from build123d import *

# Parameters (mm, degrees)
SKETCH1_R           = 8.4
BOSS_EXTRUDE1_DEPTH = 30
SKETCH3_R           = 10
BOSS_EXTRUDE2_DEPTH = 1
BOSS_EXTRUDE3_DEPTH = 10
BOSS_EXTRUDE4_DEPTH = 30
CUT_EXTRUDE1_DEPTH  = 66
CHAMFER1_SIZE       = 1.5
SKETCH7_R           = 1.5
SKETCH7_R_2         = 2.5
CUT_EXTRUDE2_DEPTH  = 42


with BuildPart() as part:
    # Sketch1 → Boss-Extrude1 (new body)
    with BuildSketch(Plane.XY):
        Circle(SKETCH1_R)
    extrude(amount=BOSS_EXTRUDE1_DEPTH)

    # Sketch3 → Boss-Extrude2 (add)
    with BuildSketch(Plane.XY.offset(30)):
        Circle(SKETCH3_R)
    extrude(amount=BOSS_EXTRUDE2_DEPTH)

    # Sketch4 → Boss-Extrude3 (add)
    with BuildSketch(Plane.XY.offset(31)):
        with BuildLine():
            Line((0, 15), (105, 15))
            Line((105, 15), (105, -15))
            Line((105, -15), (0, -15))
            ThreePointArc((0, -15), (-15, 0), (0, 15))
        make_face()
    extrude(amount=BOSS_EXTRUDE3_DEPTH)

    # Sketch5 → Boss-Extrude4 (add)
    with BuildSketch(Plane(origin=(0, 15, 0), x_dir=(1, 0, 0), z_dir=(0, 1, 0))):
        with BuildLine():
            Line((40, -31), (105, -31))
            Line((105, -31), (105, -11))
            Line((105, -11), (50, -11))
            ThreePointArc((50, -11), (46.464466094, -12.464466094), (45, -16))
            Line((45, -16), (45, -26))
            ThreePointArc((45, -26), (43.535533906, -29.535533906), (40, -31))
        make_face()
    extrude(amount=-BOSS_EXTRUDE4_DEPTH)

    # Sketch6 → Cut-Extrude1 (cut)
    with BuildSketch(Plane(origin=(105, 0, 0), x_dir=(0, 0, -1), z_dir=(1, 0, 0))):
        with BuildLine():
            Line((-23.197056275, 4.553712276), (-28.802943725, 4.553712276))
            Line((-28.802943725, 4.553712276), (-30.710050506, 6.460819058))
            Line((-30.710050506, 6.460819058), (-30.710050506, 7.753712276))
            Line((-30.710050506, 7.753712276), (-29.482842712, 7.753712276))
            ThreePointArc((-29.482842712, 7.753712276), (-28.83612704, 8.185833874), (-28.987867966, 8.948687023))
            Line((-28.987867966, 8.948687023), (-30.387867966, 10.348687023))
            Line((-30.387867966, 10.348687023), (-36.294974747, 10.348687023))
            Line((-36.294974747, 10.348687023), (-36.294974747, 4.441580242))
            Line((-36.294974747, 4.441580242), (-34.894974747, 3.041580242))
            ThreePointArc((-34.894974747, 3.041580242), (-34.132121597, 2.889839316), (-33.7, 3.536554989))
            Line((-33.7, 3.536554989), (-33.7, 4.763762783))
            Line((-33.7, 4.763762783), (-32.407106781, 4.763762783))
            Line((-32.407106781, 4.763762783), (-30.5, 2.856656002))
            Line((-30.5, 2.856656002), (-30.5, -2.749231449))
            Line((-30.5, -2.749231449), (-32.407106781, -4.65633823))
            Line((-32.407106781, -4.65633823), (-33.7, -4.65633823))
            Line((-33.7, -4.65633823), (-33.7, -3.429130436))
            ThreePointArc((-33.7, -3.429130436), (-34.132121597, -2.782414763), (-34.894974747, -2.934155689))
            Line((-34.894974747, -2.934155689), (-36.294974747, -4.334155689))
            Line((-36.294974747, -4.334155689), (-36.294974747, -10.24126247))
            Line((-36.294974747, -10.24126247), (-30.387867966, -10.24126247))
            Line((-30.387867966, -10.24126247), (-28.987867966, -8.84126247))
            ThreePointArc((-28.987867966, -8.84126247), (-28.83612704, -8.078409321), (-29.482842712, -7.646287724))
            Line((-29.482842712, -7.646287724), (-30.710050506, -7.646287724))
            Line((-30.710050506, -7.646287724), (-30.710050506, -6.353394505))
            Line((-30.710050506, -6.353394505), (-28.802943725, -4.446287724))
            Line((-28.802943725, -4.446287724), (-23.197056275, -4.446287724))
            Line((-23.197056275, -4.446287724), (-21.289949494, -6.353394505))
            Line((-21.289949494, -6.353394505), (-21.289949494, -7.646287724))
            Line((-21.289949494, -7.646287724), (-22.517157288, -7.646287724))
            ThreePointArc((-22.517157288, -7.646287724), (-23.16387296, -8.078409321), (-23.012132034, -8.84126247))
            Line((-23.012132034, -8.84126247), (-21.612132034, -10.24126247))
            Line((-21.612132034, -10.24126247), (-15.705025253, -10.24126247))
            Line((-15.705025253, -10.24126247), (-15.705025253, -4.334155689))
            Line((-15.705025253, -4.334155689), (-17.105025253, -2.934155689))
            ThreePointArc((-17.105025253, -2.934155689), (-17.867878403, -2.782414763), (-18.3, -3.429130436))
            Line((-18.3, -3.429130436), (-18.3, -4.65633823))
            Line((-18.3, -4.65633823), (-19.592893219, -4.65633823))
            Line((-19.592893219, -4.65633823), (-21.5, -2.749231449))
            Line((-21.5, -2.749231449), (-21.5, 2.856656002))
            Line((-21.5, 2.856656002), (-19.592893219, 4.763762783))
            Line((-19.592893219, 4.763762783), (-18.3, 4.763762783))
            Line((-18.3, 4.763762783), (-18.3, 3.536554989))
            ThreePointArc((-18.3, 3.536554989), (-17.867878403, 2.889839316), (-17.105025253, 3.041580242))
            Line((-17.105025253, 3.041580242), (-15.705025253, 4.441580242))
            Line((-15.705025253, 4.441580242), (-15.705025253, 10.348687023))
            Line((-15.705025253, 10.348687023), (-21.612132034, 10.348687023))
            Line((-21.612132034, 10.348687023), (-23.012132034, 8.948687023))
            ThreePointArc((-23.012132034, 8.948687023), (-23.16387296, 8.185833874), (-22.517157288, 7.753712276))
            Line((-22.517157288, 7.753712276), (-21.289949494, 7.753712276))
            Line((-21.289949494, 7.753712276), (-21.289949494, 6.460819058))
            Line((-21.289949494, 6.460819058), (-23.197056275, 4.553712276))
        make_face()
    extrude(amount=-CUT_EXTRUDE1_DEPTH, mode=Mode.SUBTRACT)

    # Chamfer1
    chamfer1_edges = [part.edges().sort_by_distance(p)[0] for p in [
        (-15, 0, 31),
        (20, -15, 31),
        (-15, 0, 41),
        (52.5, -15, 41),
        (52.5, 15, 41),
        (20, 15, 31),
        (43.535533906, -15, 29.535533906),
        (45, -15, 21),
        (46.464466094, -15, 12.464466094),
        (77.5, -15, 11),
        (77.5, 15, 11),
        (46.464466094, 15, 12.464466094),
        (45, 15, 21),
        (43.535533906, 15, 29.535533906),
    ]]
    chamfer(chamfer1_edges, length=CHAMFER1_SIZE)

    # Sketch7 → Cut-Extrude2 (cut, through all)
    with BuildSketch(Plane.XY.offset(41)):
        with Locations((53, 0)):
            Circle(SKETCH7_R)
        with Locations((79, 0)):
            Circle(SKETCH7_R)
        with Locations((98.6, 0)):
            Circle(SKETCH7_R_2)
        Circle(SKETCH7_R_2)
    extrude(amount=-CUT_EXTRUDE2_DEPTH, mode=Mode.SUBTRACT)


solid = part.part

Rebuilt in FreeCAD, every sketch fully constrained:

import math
import FreeCAD as App
import Part
import Sketcher
from FreeCAD import Vector


def edges_at(feature, points):
    """Names of the edges that pass closest to the given points."""
    edges = feature.Shape.Edges
    near = lambda p: min(range(len(edges)), key=lambda i: edges[i].distToShape(Part.Vertex(*p))[0])
    return sorted({f"Edge{near(p) + 1}" for p in points})

doc = App.newDocument("Part")
params = doc.addObject("Spreadsheet::Sheet", "Params")
for row, (alias, value) in enumerate([
    ("sketch1_diameter", "16.8 mm"),
    ("pad1_length", "30 mm"),
    ("sketch2_diameter", "20 mm"),
    ("pad2_length", "1 mm"),
    ("sketch3_radius", "15 mm"),
    ("sketch3_width", "105 mm"),
    ("pad3_length", "10 mm"),
    ("sketch4_radius", "5 mm"),
    ("sketch4_width", "65 mm"),
    ("sketch4_height", "20 mm"),
    ("pad4_length", "30 mm"),
    ("sketch5_radius", "0.7 mm"),
    ("pocket1_length", "66 mm"),
    ("chamfer_size", "1.5 mm"),
    ("sketch6_diameter", "3 mm"),
    ("sketch6_diameter2", "5 mm"),
], start=1):
    params.set(f"A{row}", alias)
    params.set(f"B{row}", "=" + value)
    params.setAlias(f"B{row}", alias)

body = doc.addObject("PartDesign::Body", "Body")

sketch1 = body.newObject("Sketcher::SketchObject", "Sketch")
sketch1.AttachmentSupport = (doc.getObject("XY_Plane"), [""])
sketch1.MapMode = "FlatFace"
sketch1.addGeometry(Part.Circle(Vector(0, 0, 0), Vector(0, 0, 1), 8.4), False)
sketch1.addConstraint([
    Sketcher.Constraint("Coincident", 0, 3, -1, 1),
    Sketcher.Constraint("Diameter", 0, 16.8),
])
sketch1.setExpression("Constraints[1]", "Params.sketch1_diameter")
pad1 = body.newObject("PartDesign::Pad", "Pad")
pad1.Profile = sketch1
pad1.setExpression("Length", "Params.pad1_length")

sketch2 = body.newObject("Sketcher::SketchObject", "Sketch001")
sketch2.AttachmentSupport = (doc.getObject("XY_Plane"), [""])
sketch2.MapMode = "FlatFace"
sketch2.AttachmentOffset = App.Placement(Vector(0, 0, 30), App.Rotation())
sketch2.addGeometry(Part.Circle(Vector(0, 0, 0), Vector(0, 0, 1), 10), False)
sketch2.addConstraint([
    Sketcher.Constraint("Coincident", 0, 3, -1, 1),
    Sketcher.Constraint("Diameter", 0, 20.0),
])
sketch2.setExpression("Constraints[1]", "Params.sketch2_diameter")
pad2 = body.newObject("PartDesign::Pad", "Pad001")
pad2.Profile = sketch2
pad2.setExpression("Length", "Params.pad2_length")

sketch3 = body.newObject("Sketcher::SketchObject", "Sketch002")
sketch3.AttachmentSupport = (doc.getObject("XY_Plane"), [""])
sketch3.MapMode = "FlatFace"
sketch3.AttachmentOffset = App.Placement(Vector(0, 0, 31), App.Rotation())
sketch3.addGeometry([
    Part.LineSegment(Vector(105, 15, 0), Vector(0, 15, 0)),
    Part.ArcOfCircle(Part.Circle(Vector(0, 0, 0), Vector(0, 0, 1), 15), math.radians(90), math.radians(270)),
    Part.LineSegment(Vector(0, -15, 0), Vector(105, -15, 0)),
    Part.LineSegment(Vector(105, -15, 0), Vector(105, 15, 0)),
], False)
sketch3.addConstraint([
    Sketcher.Constraint("Tangent", 0, 2, 1, 1),
    Sketcher.Constraint("Tangent", 1, 2, 2, 1),
    Sketcher.Constraint("Coincident", 2, 2, 3, 1),
    Sketcher.Constraint("Coincident", 3, 2, 0, 1),
    Sketcher.Constraint("Horizontal", 0),
    Sketcher.Constraint("Horizontal", 2),
    Sketcher.Constraint("Vertical", 3),
    Sketcher.Constraint("Coincident", 1, 3, -1, 1),
    Sketcher.Constraint("Radius", 1, 15.0),
    Sketcher.Constraint("DistanceX", 0, 2, 0, 1, 105.0),
])
sketch3.setExpression("Constraints[8]", "Params.sketch3_radius")
sketch3.setExpression("Constraints[9]", "Params.sketch3_width")
pad3 = body.newObject("PartDesign::Pad", "Pad002")
pad3.Profile = sketch3
pad3.setExpression("Length", "Params.pad3_length")

sketch4 = body.newObject("Sketcher::SketchObject", "Sketch003")
sketch4.AttachmentSupport = (doc.getObject("XZ_Plane"), [""])
sketch4.MapMode = "FlatFace"
sketch4.AttachmentOffset = App.Placement(Vector(0, 0, -15), App.Rotation())
sketch4.addGeometry([
    Part.LineSegment(Vector(40, 31, 0), Vector(105, 31, 0)),
    Part.LineSegment(Vector(105, 31, 0), Vector(105, 11, 0)),
    Part.LineSegment(Vector(105, 11, 0), Vector(50, 11, 0)),
    Part.ArcOfCircle(Part.Circle(Vector(50, 16, 0), Vector(0, 0, 1), 5), math.radians(180), math.radians(270)),
    Part.LineSegment(Vector(45, 16, 0), Vector(45, 26, 0)),
    Part.ArcOfCircle(Part.Circle(Vector(40, 26, 0), Vector(0, 0, 1), 5), math.radians(0), math.radians(90)),
], False)
sketch4.addConstraint([
    Sketcher.Constraint("Coincident", 0, 2, 1, 1),
    Sketcher.Constraint("Coincident", 1, 2, 2, 1),
    Sketcher.Constraint("Tangent", 2, 2, 3, 2),
    Sketcher.Constraint("Tangent", 3, 1, 4, 1),
    Sketcher.Constraint("Tangent", 4, 2, 5, 1),
    Sketcher.Constraint("Tangent", 5, 2, 0, 1),
    Sketcher.Constraint("Horizontal", 0),
    Sketcher.Constraint("Vertical", 1),
    Sketcher.Constraint("Horizontal", 2),
    Sketcher.Constraint("Vertical", 4),
    Sketcher.Constraint("Equal", 3, 5),
    Sketcher.Constraint("Radius", 3, 5.0),
    Sketcher.Constraint("DistanceX", 0, 1, 0, 2, 65.0),
    Sketcher.Constraint("DistanceY", 1, 2, 1, 1, 20.0),
    Sketcher.Constraint("DistanceX", -1, 1, 3, 3, 50.0),
    Sketcher.Constraint("DistanceY", -1, 1, 3, 3, 16.0),
])
sketch4.setExpression("Constraints[11]", "Params.sketch4_radius")
sketch4.setExpression("Constraints[12]", "Params.sketch4_width")
sketch4.setExpression("Constraints[13]", "Params.sketch4_height")
pad4 = body.newObject("PartDesign::Pad", "Pad003")
pad4.Profile = sketch4
pad4.setExpression("Length", "Params.pad4_length")

sketch5 = body.newObject("Sketcher::SketchObject", "Sketch004")
sketch5.AttachmentSupport = (doc.getObject("YZ_Plane"), [""])
sketch5.MapMode = "FlatFace"
sketch5.AttachmentOffset = App.Placement(Vector(0, 0, 105), App.Rotation())
sketch5.addGeometry([
    Part.LineSegment(Vector(4.553712, 23.197056, 0), Vector(4.553712, 28.802944, 0)),
    Part.LineSegment(Vector(4.553712, 28.802944, 0), Vector(6.460819, 30.710051, 0)),
    Part.LineSegment(Vector(6.460819, 30.710051, 0), Vector(7.753712, 30.710051, 0)),
    Part.LineSegment(Vector(7.753712, 30.710051, 0), Vector(7.753712, 29.482843, 0)),
    Part.ArcOfCircle(Part.Circle(Vector(8.453712, 29.482843, 0), Vector(0, 0, 1), 0.7), math.radians(-180), math.radians(-45)),
    Part.LineSegment(Vector(8.948687, 28.987868, 0), Vector(10.348687, 30.387868, 0)),
    Part.LineSegment(Vector(10.348687, 30.387868, 0), Vector(10.348687, 36.294975, 0)),
    Part.LineSegment(Vector(10.348687, 36.294975, 0), Vector(4.44158, 36.294975, 0)),
    Part.LineSegment(Vector(4.44158, 36.294975, 0), Vector(3.04158, 34.894975, 0)),
    Part.ArcOfCircle(Part.Circle(Vector(3.536555, 34.4, 0), Vector(0, 0, 1), 0.7), math.radians(135), math.radians(270)),
    Part.LineSegment(Vector(3.536555, 33.7, 0), Vector(4.763763, 33.7, 0)),
    Part.LineSegment(Vector(4.763763, 33.7, 0), Vector(4.763763, 32.407107, 0)),
    Part.LineSegment(Vector(4.763763, 32.407107, 0), Vector(2.856656, 30.5, 0)),
    Part.LineSegment(Vector(2.856656, 30.5, 0), Vector(-2.749231, 30.5, 0)),
    Part.LineSegment(Vector(-2.749231, 30.5, 0), Vector(-4.656338, 32.407107, 0)),
    Part.LineSegment(Vector(-4.656338, 32.407107, 0), Vector(-4.656338, 33.7, 0)),
    Part.LineSegment(Vector(-4.656338, 33.7, 0), Vector(-3.42913, 33.7, 0)),
    Part.ArcOfCircle(Part.Circle(Vector(-3.42913, 34.4, 0), Vector(0, 0, 1), 0.7), math.radians(-90), math.radians(45)),
    Part.LineSegment(Vector(-2.934156, 34.894975, 0), Vector(-4.334156, 36.294975, 0)),
    Part.LineSegment(Vector(-4.334156, 36.294975, 0), Vector(-10.241262, 36.294975, 0)),
    Part.LineSegment(Vector(-10.241262, 36.294975, 0), Vector(-10.241262, 30.387868, 0)),
    Part.LineSegment(Vector(-10.241262, 30.387868, 0), Vector(-8.841262, 28.987868, 0)),
    Part.ArcOfCircle(Part.Circle(Vector(-8.346288, 29.482843, 0), Vector(0, 0, 1), 0.7), math.radians(-135), math.radians(0)),
    Part.LineSegment(Vector(-7.646288, 29.482843, 0), Vector(-7.646288, 30.710051, 0)),
    Part.LineSegment(Vector(-7.646288, 30.710051, 0), Vector(-6.353395, 30.710051, 0)),
    Part.LineSegment(Vector(-6.353395, 30.710051, 0), Vector(-4.446288, 28.802944, 0)),
    Part.LineSegment(Vector(-4.446288, 28.802944, 0), Vector(-4.446288, 23.197056, 0)),
    Part.LineSegment(Vector(-4.446288, 23.197056, 0), Vector(-6.353395, 21.289949, 0)),
    Part.LineSegment(Vector(-6.353395, 21.289949, 0), Vector(-7.646288, 21.289949, 0)),
    Part.LineSegment(Vector(-7.646288, 21.289949, 0), Vector(-7.646288, 22.517157, 0)),
    Part.ArcOfCircle(Part.Circle(Vector(-8.346288, 22.517157, 0), Vector(0, 0, 1), 0.7), math.radians(0), math.radians(135)),
    Part.LineSegment(Vector(-8.841262, 23.012132, 0), Vector(-10.241262, 21.612132, 0)),
    Part.LineSegment(Vector(-10.241262, 21.612132, 0), Vector(-10.241262, 15.705025, 0)),
    Part.LineSegment(Vector(-10.241262, 15.705025, 0), Vector(-4.334156, 15.705025, 0)),
    Part.LineSegment(Vector(-4.334156, 15.705025, 0), Vector(-2.934156, 17.105025, 0)),
    Part.ArcOfCircle(Part.Circle(Vector(-3.42913, 17.6, 0), Vector(0, 0, 1), 0.7), math.radians(-45), math.radians(90)),
    Part.LineSegment(Vector(-3.42913, 18.3, 0), Vector(-4.656338, 18.3, 0)),
    Part.LineSegment(Vector(-4.656338, 18.3, 0), Vector(-4.656338, 19.592893, 0)),
    Part.LineSegment(Vector(-4.656338, 19.592893, 0), Vector(-2.749231, 21.5, 0)),
    Part.LineSegment(Vector(-2.749231, 21.5, 0), Vector(2.856656, 21.5, 0)),
    Part.LineSegment(Vector(2.856656, 21.5, 0), Vector(4.763763, 19.592893, 0)),
    Part.LineSegment(Vector(4.763763, 19.592893, 0), Vector(4.763763, 18.3, 0)),
    Part.LineSegment(Vector(4.763763, 18.3, 0), Vector(3.536555, 18.3, 0)),
    Part.ArcOfCircle(Part.Circle(Vector(3.536555, 17.6, 0), Vector(0, 0, 1), 0.7), math.radians(90), math.radians(225)),
    Part.LineSegment(Vector(3.04158, 17.105025, 0), Vector(4.44158, 15.705025, 0)),
    Part.LineSegment(Vector(4.44158, 15.705025, 0), Vector(10.348687, 15.705025, 0)),
    Part.LineSegment(Vector(10.348687, 15.705025, 0), Vector(10.348687, 21.612132, 0)),
    Part.LineSegment(Vector(10.348687, 21.612132, 0), Vector(8.948687, 23.012132, 0)),
    Part.ArcOfCircle(Part.Circle(Vector(8.453712, 22.517157, 0), Vector(0, 0, 1), 0.7), math.radians(45), math.radians(180)),
    Part.LineSegment(Vector(7.753712, 22.517157, 0), Vector(7.753712, 21.289949, 0)),
    Part.LineSegment(Vector(7.753712, 21.289949, 0), Vector(6.460819, 21.289949, 0)),
    Part.LineSegment(Vector(6.460819, 21.289949, 0), Vector(4.553712, 23.197056, 0)),
], False)
sketch5.addConstraint([
    Sketcher.Constraint("Coincident", 0, 2, 1, 1),
    Sketcher.Constraint("Coincident", 1, 2, 2, 1),
    Sketcher.Constraint("Coincident", 2, 2, 3, 1),
    Sketcher.Constraint("Tangent", 3, 2, 4, 1),
    Sketcher.Constraint("Tangent", 4, 2, 5, 1),
    Sketcher.Constraint("Coincident", 5, 2, 6, 1),
    Sketcher.Constraint("Coincident", 6, 2, 7, 1),
    Sketcher.Constraint("Coincident", 7, 2, 8, 1),
    Sketcher.Constraint("Tangent", 8, 2, 9, 1),
    Sketcher.Constraint("Tangent", 9, 2, 10, 1),
    Sketcher.Constraint("Coincident", 10, 2, 11, 1),
    Sketcher.Constraint("Coincident", 11, 2, 12, 1),
    Sketcher.Constraint("Coincident", 12, 2, 13, 1),
    Sketcher.Constraint("Coincident", 13, 2, 14, 1),
    Sketcher.Constraint("Coincident", 14, 2, 15, 1),
    Sketcher.Constraint("Coincident", 15, 2, 16, 1),
    Sketcher.Constraint("Tangent", 16, 2, 17, 1),
    Sketcher.Constraint("Tangent", 17, 2, 18, 1),
    Sketcher.Constraint("Coincident", 18, 2, 19, 1),
    Sketcher.Constraint("Coincident", 19, 2, 20, 1),
    Sketcher.Constraint("Coincident", 20, 2, 21, 1),
    Sketcher.Constraint("Tangent", 21, 2, 22, 1),
    Sketcher.Constraint("Tangent", 22, 2, 23, 1),
    Sketcher.Constraint("Coincident", 23, 2, 24, 1),
    Sketcher.Constraint("Coincident", 24, 2, 25, 1),
    Sketcher.Constraint("Coincident", 25, 2, 26, 1),
    Sketcher.Constraint("Coincident", 26, 2, 27, 1),
    Sketcher.Constraint("Coincident", 27, 2, 28, 1),
    Sketcher.Constraint("Coincident", 28, 2, 29, 1),
    Sketcher.Constraint("Tangent", 29, 2, 30, 1),
    Sketcher.Constraint("Tangent", 30, 2, 31, 1),
    Sketcher.Constraint("Coincident", 31, 2, 32, 1),
    Sketcher.Constraint("Coincident", 32, 2, 33, 1),
    Sketcher.Constraint("Coincident", 33, 2, 34, 1),
    Sketcher.Constraint("Tangent", 34, 2, 35, 1),
    Sketcher.Constraint("Tangent", 35, 2, 36, 1),
    Sketcher.Constraint("Coincident", 36, 2, 37, 1),
    Sketcher.Constraint("Coincident", 37, 2, 38, 1),
    Sketcher.Constraint("Coincident", 38, 2, 39, 1),
    Sketcher.Constraint("Coincident", 39, 2, 40, 1),
    Sketcher.Constraint("Coincident", 40, 2, 41, 1),
    Sketcher.Constraint("Coincident", 41, 2, 42, 1),
    Sketcher.Constraint("Tangent", 42, 2, 43, 1),
    Sketcher.Constraint("Tangent", 43, 2, 44, 1),
    Sketcher.Constraint("Coincident", 44, 2, 45, 1),
    Sketcher.Constraint("Coincident", 45, 2, 46, 1),
    Sketcher.Constraint("Coincident", 46, 2, 47, 1),
    Sketcher.Constraint("Tangent", 47, 2, 48, 1),
    Sketcher.Constraint("Tangent", 48, 2, 49, 1),
    Sketcher.Constraint("Coincident", 49, 2, 50, 1),
    Sketcher.Constraint("Coincident", 50, 2, 51, 1),
    Sketcher.Constraint("Coincident", 51, 2, 0, 1),
    Sketcher.Constraint("Vertical", 0),
    Sketcher.Constraint("Horizontal", 2),
    Sketcher.Constraint("Vertical", 3),
    Sketcher.Constraint("Vertical", 6),
    Sketcher.Constraint("Horizontal", 7),
    Sketcher.Constraint("Horizontal", 10),
    Sketcher.Constraint("Vertical", 11),
    Sketcher.Constraint("Horizontal", 13),
    Sketcher.Constraint("Vertical", 15),
    Sketcher.Constraint("Horizontal", 16),
    Sketcher.Constraint("Horizontal", 19),
    Sketcher.Constraint("Vertical", 20),
    Sketcher.Constraint("Vertical", 23),
    Sketcher.Constraint("Horizontal", 24),
    Sketcher.Constraint("Vertical", 26),
    Sketcher.Constraint("Horizontal", 28),
    Sketcher.Constraint("Vertical", 29),
    Sketcher.Constraint("Vertical", 32),
    Sketcher.Constraint("Horizontal", 33),
    Sketcher.Constraint("Horizontal", 36),
    Sketcher.Constraint("Vertical", 37),
    Sketcher.Constraint("Horizontal", 39),
    Sketcher.Constraint("Vertical", 41),
    Sketcher.Constraint("Horizontal", 42),
    Sketcher.Constraint("Horizontal", 45),
    Sketcher.Constraint("Vertical", 46),
    Sketcher.Constraint("Vertical", 49),
    Sketcher.Constraint("Horizontal", 50),
    Sketcher.Constraint("Equal", 4, 9),
    Sketcher.Constraint("Equal", 9, 17),
    Sketcher.Constraint("Equal", 17, 22),
    Sketcher.Constraint("Equal", 22, 30),
    Sketcher.Constraint("Equal", 30, 35),
    Sketcher.Constraint("Equal", 35, 43),
    Sketcher.Constraint("Equal", 43, 48),
    Sketcher.Constraint("Parallel", 1, 5),
    Sketcher.Constraint("Parallel", 5, 8),
    Sketcher.Constraint("Parallel", 8, 12),
    Sketcher.Constraint("Perpendicular", 12, 14),
    Sketcher.Constraint("Parallel", 14, 18),
    Sketcher.Constraint("Parallel", 18, 21),
    Sketcher.Constraint("Parallel", 21, 25),
    Sketcher.Constraint("Perpendicular", 25, 27),
    Sketcher.Constraint("Parallel", 27, 31),
    Sketcher.Constraint("Parallel", 31, 34),
    Sketcher.Constraint("Parallel", 34, 38),
    Sketcher.Constraint("Perpendicular", 38, 40),
    Sketcher.Constraint("Parallel", 40, 44),
    Sketcher.Constraint("Parallel", 44, 47),
    Sketcher.Constraint("Parallel", 47, 51),
    Sketcher.Constraint("Horizontal", 9, 3, 17, 3),
    Sketcher.Constraint("Horizontal", 4, 3, 22, 3),
    Sketcher.Constraint("Horizontal", 35, 3, 43, 3),
    Sketcher.Constraint("Horizontal", 30, 3, 48, 3),
    Sketcher.Constraint("Horizontal", 11, 2, 14, 2),
    Sketcher.Constraint("Horizontal", 8, 2, 17, 2),
    Sketcher.Constraint("Horizontal", 7, 2, 18, 2),
    Sketcher.Constraint("Horizontal", 5, 2, 20, 2),
    Sketcher.Constraint("Horizontal", 2, 2, 23, 2),
    Sketcher.Constraint("Horizontal", 0, 2, 25, 2),
    Sketcher.Constraint("Horizontal", 37, 2, 40, 2),
    Sketcher.Constraint("Horizontal", 33, 2, 44, 2),
    Sketcher.Constraint("Horizontal", 31, 2, 46, 2),
    Sketcher.Constraint("Horizontal", 28, 2, 49, 2),
    Sketcher.Constraint("Horizontal", 26, 2, 51, 2),
    Sketcher.Constraint("Vertical", 22, 3, 30, 3),
    Sketcher.Constraint("Vertical", 17, 3, 35, 3),
    Sketcher.Constraint("Vertical", 9, 3, 43, 3),
    Sketcher.Constraint("Vertical", 4, 3, 48, 3),
    Sketcher.Constraint("Vertical", 24, 2, 27, 2),
    Sketcher.Constraint("Vertical", 20, 2, 31, 2),
    Sketcher.Constraint("Vertical", 18, 2, 33, 2),
    Sketcher.Constraint("Vertical", 15, 2, 36, 2),
    Sketcher.Constraint("Vertical", 13, 2, 38, 2),
    Sketcher.Constraint("Vertical", 12, 2, 39, 2),
    Sketcher.Constraint("Equal", 10, 16),
    Sketcher.Constraint("Equal", 7, 19),
    Sketcher.Constraint("Equal", 2, 24),
    Sketcher.Constraint("Equal", 39, 0),
    Sketcher.Constraint("Equal", 42, 3),
    Sketcher.Constraint("Equal", 45, 6),
    Sketcher.Constraint("Equal", 50, 11),
    Sketcher.Constraint("Equal", 23, 29),
    Sketcher.Constraint("Equal", 20, 32),
    Sketcher.Constraint("Equal", 15, 37),
    Sketcher.Constraint("Equal", 5, 8),
    Sketcher.Constraint("Equal", 1, 12),
    Sketcher.Constraint("Radius", 4, 0.7),
    Sketcher.Constraint("DistanceY", -1, 1, 9, 3, 34.4),
    Sketcher.Constraint("DistanceY", -1, 1, 35, 3, 17.6),
    Sketcher.Constraint("DistanceY", -1, 1, 12, 2, 30.5),
    Sketcher.Constraint("DistanceX", 4, 2, 5, 2, 1.4),
    Sketcher.Constraint("DistanceY", 0, 2, 4, 3, 0.679899),
    Sketcher.Constraint("DistanceX", 2, 1, 2, 2, 1.292893),
    Sketcher.Constraint("DistanceX", 7, 2, 7, 1, 5.907107),
    Sketcher.Constraint("DistanceX", 17, 3, -1, 1, 3.42913),
])
sketch5.setExpression("Constraints[139]", "Params.sketch5_radius")
pocket1 = body.newObject("PartDesign::Pocket", "Pocket")
pocket1.Profile = sketch5
pocket1.setExpression("Length", "Params.pocket1_length")
doc.recompute()

chamfer = body.newObject("PartDesign::Chamfer", "Chamfer")
chamfer.Base = (pocket1, edges_at(pocket1, [
    (-15, 0, 31),
    (20, -15, 31),
    (-15, 0, 41),
    (52.5, -15, 41),
    (52.5, 15, 41),
    (20, 15, 31),
    (43.536, -15, 29.536),
    (45, -15, 21),
    (46.464, -15, 12.464),
    (77.5, -15, 11),
    (77.5, 15, 11),
    (46.464, 15, 12.464),
    (45, 15, 21),
    (43.536, 15, 29.536),
]))
chamfer.setExpression("Size", "Params.chamfer_size")

sketch6 = body.newObject("Sketcher::SketchObject", "Sketch005")
sketch6.AttachmentSupport = (doc.getObject("XY_Plane"), [""])
sketch6.MapMode = "FlatFace"
sketch6.AttachmentOffset = App.Placement(Vector(0, 0, 41), App.Rotation())
sketch6.addGeometry([
    Part.Circle(Vector(53, 0, 0), Vector(0, 0, 1), 1.5),
    Part.Circle(Vector(79, 0, 0), Vector(0, 0, 1), 1.5),
    Part.Circle(Vector(98.6, 0, 0), Vector(0, 0, 1), 2.5),
    Part.Circle(Vector(0, 0, 0), Vector(0, 0, 1), 2.5),
], False)
sketch6.addConstraint([
    Sketcher.Constraint("Coincident", 3, 3, -1, 1),
    Sketcher.Constraint("Equal", 0, 1),
    Sketcher.Constraint("Equal", 2, 3),
    Sketcher.Constraint("PointOnObject", 0, 3, -1),
    Sketcher.Constraint("PointOnObject", 1, 3, -1),
    Sketcher.Constraint("PointOnObject", 2, 3, -1),
    Sketcher.Constraint("Diameter", 0, 3.0),
    Sketcher.Constraint("Diameter", 2, 5.0),
    Sketcher.Constraint("DistanceX", -1, 1, 0, 3, 53.0),
    Sketcher.Constraint("DistanceX", -1, 1, 1, 3, 79.0),
    Sketcher.Constraint("DistanceX", -1, 1, 2, 3, 98.6),
])
sketch6.setExpression("Constraints[6]", "Params.sketch6_diameter")
sketch6.setExpression("Constraints[7]", "Params.sketch6_diameter2")
pocket2 = body.newObject("PartDesign::Pocket", "Pocket001")
pocket2.Profile = sketch6
pocket2.Type = "ThroughAll"

doc.recompute()
